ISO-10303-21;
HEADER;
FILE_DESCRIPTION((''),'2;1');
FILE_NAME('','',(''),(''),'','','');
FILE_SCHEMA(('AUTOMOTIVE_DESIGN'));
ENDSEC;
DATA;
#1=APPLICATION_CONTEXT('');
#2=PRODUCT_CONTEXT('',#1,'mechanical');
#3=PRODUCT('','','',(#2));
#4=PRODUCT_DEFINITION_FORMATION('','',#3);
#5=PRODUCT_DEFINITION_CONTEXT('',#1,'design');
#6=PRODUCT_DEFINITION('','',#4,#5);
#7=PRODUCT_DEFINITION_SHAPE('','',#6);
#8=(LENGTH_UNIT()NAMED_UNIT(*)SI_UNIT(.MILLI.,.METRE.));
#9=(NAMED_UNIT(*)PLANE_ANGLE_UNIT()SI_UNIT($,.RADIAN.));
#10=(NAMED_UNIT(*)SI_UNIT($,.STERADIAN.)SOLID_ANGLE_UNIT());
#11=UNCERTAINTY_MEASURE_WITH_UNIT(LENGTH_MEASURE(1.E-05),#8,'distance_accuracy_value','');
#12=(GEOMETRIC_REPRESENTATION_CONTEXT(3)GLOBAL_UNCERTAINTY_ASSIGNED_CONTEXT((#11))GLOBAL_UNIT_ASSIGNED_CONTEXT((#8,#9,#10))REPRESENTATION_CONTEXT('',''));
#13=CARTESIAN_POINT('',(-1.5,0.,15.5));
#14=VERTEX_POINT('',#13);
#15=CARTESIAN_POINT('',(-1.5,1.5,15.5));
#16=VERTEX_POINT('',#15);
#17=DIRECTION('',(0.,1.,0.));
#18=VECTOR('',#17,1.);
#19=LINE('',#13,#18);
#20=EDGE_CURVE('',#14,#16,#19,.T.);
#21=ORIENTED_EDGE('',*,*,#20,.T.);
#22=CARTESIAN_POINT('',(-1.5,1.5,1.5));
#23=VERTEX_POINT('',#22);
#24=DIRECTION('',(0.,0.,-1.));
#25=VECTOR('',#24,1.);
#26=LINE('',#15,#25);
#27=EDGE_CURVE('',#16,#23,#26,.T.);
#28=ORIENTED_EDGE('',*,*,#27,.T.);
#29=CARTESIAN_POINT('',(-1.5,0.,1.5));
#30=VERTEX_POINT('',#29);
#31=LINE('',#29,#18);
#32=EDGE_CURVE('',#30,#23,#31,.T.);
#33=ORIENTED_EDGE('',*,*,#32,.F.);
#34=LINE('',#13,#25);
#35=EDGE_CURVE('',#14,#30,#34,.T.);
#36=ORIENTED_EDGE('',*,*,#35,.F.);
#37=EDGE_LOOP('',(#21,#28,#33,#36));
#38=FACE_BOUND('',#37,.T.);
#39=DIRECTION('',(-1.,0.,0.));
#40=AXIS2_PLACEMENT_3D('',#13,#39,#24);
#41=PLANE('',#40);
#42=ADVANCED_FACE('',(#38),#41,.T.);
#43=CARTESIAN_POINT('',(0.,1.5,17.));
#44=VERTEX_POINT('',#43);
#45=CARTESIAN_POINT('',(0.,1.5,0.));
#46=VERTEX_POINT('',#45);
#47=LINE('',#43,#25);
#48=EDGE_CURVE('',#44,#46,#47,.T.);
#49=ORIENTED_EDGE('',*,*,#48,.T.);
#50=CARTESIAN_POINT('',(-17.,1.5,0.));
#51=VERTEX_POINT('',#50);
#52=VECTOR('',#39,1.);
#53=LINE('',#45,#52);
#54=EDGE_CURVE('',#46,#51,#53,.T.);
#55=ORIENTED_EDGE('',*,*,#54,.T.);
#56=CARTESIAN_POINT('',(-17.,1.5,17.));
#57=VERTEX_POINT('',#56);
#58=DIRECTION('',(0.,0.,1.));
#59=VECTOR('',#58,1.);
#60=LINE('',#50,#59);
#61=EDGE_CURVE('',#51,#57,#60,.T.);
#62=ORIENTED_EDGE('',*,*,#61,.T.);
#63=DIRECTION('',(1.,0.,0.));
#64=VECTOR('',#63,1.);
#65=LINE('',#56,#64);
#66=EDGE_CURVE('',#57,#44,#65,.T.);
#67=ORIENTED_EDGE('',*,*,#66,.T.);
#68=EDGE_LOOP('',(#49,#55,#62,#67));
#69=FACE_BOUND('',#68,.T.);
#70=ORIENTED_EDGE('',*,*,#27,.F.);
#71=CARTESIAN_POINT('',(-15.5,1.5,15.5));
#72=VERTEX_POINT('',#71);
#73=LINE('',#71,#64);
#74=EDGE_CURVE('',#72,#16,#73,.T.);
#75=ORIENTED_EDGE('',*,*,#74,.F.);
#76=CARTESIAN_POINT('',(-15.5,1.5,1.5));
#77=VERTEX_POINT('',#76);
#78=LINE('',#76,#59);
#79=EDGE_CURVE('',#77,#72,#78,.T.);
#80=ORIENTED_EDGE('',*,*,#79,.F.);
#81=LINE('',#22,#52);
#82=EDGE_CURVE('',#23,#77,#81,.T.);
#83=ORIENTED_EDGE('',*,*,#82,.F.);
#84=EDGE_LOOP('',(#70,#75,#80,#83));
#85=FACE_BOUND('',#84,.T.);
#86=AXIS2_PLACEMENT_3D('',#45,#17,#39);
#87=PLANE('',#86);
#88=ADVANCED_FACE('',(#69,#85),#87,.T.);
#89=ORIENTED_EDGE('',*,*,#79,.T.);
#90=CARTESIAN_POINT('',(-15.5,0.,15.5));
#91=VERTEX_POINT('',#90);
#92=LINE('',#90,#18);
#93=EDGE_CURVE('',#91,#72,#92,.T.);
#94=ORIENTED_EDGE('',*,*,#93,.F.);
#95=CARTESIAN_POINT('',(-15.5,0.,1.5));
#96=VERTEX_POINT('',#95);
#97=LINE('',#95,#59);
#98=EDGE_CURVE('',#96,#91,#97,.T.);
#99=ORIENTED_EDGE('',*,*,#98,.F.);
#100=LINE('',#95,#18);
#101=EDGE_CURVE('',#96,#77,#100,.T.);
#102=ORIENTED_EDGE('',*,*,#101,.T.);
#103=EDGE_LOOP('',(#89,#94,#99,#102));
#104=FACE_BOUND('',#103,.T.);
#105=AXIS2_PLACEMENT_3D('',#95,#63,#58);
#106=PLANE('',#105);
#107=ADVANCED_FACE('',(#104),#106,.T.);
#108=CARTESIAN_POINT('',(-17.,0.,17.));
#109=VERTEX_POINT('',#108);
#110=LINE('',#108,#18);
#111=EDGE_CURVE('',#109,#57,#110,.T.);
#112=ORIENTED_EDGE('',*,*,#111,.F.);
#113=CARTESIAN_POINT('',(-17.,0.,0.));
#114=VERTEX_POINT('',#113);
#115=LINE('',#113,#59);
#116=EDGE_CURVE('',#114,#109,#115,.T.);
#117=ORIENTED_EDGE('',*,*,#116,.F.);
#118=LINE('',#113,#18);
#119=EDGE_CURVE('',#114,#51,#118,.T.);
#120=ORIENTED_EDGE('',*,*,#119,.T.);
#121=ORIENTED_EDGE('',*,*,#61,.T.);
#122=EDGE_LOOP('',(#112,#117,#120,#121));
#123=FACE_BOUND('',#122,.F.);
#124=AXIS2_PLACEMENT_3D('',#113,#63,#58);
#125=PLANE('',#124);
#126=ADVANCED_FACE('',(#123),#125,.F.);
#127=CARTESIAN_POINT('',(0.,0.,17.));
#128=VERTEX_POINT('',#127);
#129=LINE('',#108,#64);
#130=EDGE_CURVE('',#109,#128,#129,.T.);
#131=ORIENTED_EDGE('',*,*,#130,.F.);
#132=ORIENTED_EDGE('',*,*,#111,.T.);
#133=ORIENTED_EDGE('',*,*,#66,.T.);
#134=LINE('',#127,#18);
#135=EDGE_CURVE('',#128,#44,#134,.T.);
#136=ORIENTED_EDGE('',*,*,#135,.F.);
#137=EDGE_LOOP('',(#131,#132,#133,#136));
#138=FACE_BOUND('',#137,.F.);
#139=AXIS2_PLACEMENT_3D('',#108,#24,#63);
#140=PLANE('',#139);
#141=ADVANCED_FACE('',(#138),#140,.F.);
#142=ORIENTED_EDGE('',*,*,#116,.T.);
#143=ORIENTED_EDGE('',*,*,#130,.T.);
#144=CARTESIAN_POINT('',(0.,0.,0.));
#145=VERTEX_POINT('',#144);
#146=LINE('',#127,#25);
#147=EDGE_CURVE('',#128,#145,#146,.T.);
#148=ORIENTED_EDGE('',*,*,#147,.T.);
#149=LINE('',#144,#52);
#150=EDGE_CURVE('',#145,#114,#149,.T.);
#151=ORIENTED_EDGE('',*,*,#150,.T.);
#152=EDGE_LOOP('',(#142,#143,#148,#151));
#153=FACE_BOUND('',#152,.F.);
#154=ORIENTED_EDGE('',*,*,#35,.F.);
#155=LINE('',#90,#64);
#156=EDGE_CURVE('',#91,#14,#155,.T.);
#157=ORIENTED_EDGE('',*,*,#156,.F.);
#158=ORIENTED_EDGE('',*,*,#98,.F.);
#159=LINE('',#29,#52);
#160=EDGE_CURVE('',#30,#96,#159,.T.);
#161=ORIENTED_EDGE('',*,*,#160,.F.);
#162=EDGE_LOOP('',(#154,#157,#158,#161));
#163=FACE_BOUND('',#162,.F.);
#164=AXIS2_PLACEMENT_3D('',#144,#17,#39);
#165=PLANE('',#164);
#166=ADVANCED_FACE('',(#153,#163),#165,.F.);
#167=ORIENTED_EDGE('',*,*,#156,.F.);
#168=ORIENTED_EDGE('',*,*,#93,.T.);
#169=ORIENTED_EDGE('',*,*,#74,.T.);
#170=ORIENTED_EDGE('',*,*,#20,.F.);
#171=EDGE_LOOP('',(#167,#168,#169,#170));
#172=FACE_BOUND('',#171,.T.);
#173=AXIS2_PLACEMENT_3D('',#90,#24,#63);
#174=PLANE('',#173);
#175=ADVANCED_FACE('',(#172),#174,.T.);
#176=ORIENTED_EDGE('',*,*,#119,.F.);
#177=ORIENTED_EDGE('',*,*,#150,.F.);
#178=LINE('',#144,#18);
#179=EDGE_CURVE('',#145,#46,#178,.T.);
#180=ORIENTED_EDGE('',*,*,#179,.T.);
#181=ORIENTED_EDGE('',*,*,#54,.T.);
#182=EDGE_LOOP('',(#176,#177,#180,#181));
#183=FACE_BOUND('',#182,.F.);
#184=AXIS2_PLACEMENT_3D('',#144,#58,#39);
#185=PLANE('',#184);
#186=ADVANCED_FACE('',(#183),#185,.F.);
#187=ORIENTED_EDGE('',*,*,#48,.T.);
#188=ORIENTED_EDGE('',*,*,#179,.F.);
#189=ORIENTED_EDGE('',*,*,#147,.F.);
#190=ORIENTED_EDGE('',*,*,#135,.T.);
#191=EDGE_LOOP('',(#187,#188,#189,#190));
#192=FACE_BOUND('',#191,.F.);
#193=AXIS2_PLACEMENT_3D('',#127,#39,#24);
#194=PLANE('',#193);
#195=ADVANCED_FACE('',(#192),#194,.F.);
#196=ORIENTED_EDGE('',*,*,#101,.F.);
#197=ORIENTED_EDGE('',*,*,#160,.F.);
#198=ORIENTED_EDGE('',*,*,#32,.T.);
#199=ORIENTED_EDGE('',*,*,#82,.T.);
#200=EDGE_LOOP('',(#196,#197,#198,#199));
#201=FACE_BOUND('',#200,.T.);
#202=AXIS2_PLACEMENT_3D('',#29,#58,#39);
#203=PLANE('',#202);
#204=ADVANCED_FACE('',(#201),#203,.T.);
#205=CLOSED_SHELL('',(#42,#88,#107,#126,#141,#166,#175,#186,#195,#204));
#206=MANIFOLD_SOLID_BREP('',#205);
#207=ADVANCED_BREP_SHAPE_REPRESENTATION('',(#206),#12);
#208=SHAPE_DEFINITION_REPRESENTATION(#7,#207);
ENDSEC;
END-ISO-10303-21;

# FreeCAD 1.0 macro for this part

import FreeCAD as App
import Part
import Sketcher
from FreeCAD import Vector


def add_polygon(sketch, points):
    """Adds a closed chain of lines whose ends are joined by coincident constraints."""
    first, n = sketch.GeometryCount, len(points)
    for a, b in zip(points, points[1:] + points[:1]):
        sketch.addGeometry(Part.LineSegment(App.Vector(*a, 0), App.Vector(*b, 0)), False)
    for i in range(n):
        sketch.addConstraint(Sketcher.Constraint("Coincident", first + i, 2, first + (i + 1) % n, 1))

doc = App.newDocument("Part")
params = doc.addObject("Spreadsheet::Sheet", "Params")
for row, (alias, value) in enumerate([
    ("sketch1_width", "17 mm"),
    ("sketch1_width2", "14 mm"),
    ("pad1_length", "1.5 mm"),
], start=1):
    params.set(f"A{row}", alias)
    params.set(f"B{row}", "=" + value)
    params.setAlias(f"B{row}", alias)

body = doc.addObject("PartDesign::Body", "Body")

sketch1 = body.newObject("Sketcher::SketchObject", "Sketch")
sketch1.AttachmentSupport = (doc.getObject("XZ_Plane"), [""])
sketch1.MapMode = "FlatFace"
add_polygon(sketch1, [(0, 17), (0, 0), (-17, 0), (-17, 17)])
add_polygon(sketch1, [(-16, 2), (-2, 2), (-2, 16), (-16, 16)])
sketch1.addConstraint(Sketcher.Constraint("Vertical", 0))
sketch1.addConstraint(Sketcher.Constraint("Horizontal", 1))
sketch1.addConstraint(Sketcher.Constraint("Vertical", 2))
sketch1.addConstraint(Sketcher.Constraint("Horizontal", 3))
sketch1.addConstraint(Sketcher.Constraint("Horizontal", 4))
sketch1.addConstraint(Sketcher.Constraint("Vertical", 5))
sketch1.addConstraint(Sketcher.Constraint("Horizontal", 6))
sketch1.addConstraint(Sketcher.Constraint("Vertical", 7))
sketch1.addConstraint(Sketcher.Constraint("Coincident", 0, 2, -1, 1))
sketch1.addConstraint(Sketcher.Constraint("Equal", 3, 0))
sketch1.addConstraint(Sketcher.Constraint("Equal", 6, 5))
sketch1.addConstraint(Sketcher.Constraint("DistanceX", 1, 2, 1, 1, 17.0))
sketch1.addConstraint(Sketcher.Constraint("DistanceX", 4, 1, 4, 2, 14.0))
sketch1.addConstraint(Sketcher.Constraint("DistanceX", 4, 2, -1, 1, 1.5))
sketch1.addConstraint(Sketcher.Constraint("DistanceY", -1, 1, 4, 2, 1.5))
sketch1.setExpression("Constraints[19]", "Params.sketch1_width")
sketch1.setExpression("Constraints[20]", "Params.sketch1_width2")
pad1 = body.newObject("PartDesign::Pad", "Pad")
pad1.Profile = sketch1
pad1.setExpression("Length", "Params.pad1_length")
pad1.Reversed = True

doc.recompute()
